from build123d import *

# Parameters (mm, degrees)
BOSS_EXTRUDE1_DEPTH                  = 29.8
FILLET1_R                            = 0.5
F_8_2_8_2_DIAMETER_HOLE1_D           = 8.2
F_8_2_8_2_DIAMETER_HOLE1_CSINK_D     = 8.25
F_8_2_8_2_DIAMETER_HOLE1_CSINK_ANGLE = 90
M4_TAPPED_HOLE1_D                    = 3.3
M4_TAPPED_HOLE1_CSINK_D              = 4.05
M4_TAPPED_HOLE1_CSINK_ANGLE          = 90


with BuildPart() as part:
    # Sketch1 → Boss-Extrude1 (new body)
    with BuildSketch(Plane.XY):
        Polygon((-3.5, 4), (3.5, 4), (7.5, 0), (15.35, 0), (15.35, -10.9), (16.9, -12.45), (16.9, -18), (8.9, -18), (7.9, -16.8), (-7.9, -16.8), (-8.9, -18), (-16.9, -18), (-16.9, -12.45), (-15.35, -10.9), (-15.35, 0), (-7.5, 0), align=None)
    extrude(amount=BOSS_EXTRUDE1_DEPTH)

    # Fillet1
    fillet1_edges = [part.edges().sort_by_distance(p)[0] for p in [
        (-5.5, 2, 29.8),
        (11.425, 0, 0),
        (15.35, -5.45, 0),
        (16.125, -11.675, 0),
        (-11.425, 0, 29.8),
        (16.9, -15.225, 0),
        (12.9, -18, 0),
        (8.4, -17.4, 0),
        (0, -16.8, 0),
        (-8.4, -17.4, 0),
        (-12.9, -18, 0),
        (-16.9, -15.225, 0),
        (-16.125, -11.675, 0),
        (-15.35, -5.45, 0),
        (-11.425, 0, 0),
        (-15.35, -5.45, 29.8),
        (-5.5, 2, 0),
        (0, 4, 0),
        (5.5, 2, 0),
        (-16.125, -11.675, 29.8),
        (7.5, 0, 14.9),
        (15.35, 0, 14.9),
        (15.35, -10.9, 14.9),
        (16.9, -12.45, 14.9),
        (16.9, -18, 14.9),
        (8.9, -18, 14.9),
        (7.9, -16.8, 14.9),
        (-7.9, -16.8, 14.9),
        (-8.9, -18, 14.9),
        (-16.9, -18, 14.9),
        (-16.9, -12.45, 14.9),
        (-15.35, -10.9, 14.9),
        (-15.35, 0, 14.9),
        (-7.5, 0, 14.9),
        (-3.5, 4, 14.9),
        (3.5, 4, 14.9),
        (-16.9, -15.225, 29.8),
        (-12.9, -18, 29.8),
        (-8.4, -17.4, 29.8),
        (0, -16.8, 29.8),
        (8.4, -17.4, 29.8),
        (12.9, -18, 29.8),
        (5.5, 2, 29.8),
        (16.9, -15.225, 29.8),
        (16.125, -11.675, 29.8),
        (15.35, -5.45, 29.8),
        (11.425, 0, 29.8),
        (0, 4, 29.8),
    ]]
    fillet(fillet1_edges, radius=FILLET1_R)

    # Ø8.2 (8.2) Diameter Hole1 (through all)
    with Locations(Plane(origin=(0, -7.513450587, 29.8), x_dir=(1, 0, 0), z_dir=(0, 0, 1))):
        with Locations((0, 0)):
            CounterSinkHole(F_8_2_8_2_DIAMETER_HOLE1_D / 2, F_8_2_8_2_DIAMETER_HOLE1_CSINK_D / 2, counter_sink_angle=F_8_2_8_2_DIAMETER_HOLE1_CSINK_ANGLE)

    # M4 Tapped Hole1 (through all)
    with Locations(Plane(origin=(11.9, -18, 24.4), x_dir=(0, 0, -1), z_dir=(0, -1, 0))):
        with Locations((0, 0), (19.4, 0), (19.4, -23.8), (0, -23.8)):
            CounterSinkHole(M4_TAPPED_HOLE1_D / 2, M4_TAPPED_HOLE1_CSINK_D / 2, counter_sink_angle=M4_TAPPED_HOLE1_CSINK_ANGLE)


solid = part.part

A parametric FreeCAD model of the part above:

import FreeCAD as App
import Part
import Sketcher
from FreeCAD import Vector
Q = App.Units.Quantity

doc = App.newDocument("Part")
body = doc.addObject("PartDesign::Body", "Body")

sketch1 = doc.addObject("Sketcher::SketchObject", "Sketch")
body.addObject(sketch1)
sketch1.AttachmentSupport = (doc.XY_Plane, [""])
sketch1.MapMode = "FlatFace"
sketch1.addGeometry([
    Part.LineSegment(Vector(3.5, 4, 0), Vector(-3.5, 4, 0)),
    Part.LineSegment(Vector(-3.5, 4, 0), Vector(-7.5, 0, 0)),
    Part.LineSegment(Vector(-7.5, 0, 0), Vector(-15.35, 0, 0)),
    Part.LineSegment(Vector(-15.35, 0, 0), Vector(-15.35, -10.9, 0)),
    Part.LineSegment(Vector(-15.35, -10.9, 0), Vector(-16.9, -12.45, 0)),
    Part.LineSegment(Vector(-16.9, -12.45, 0), Vector(-16.9, -18, 0)),
    Part.LineSegment(Vector(-16.9, -18, 0), Vector(-8.9, -18, 0)),
    Part.LineSegment(Vector(-8.9, -18, 0), Vector(-7.9, -16.8, 0)),
    Part.LineSegment(Vector(-7.9, -16.8, 0), Vector(7.9, -16.8, 0)),
    Part.LineSegment(Vector(7.9, -16.8, 0), Vector(8.9, -18, 0)),
    Part.LineSegment(Vector(8.9, -18, 0), Vector(16.9, -18, 0)),
    Part.LineSegment(Vector(16.9, -18, 0), Vector(16.9, -12.45, 0)),
    Part.LineSegment(Vector(16.9, -12.45, 0), Vector(15.35, -10.9, 0)),
    Part.LineSegment(Vector(15.35, -10.9, 0), Vector(15.35, 0, 0)),
    Part.LineSegment(Vector(15.35, 0, 0), Vector(7.5, 0, 0)),
    Part.LineSegment(Vector(7.5, 0, 0), Vector(3.5, 4, 0)),
], False)
sketch1.addConstraint([
    Sketcher.Constraint("Coincident", 0, 2, 1, 1),
    Sketcher.Constraint("Coincident", 1, 2, 2, 1),
    Sketcher.Constraint("Coincident", 2, 2, 3, 1),
    Sketcher.Constraint("Coincident", 3, 2, 4, 1),
    Sketcher.Constraint("Coincident", 4, 2, 5, 1),
    Sketcher.Constraint("Coincident", 5, 2, 6, 1),
    Sketcher.Constraint("Coincident", 6, 2, 7, 1),
    Sketcher.Constraint("Coincident", 7, 2, 8, 1),
    Sketcher.Constraint("Coincident", 8, 2, 9, 1),
    Sketcher.Constraint("Coincident", 9, 2, 10, 1),
    Sketcher.Constraint("Coincident", 10, 2, 11, 1),
    Sketcher.Constraint("Coincident", 11, 2, 12, 1),
    Sketcher.Constraint("Coincident", 12, 2, 13, 1),
    Sketcher.Constraint("Coincident", 13, 2, 14, 1),
    Sketcher.Constraint("Coincident", 14, 2, 15, 1),
    Sketcher.Constraint("Coincident", 15, 2, 0, 1),
    Sketcher.Constraint("Horizontal", 0),
    Sketcher.Constraint("Horizontal", 2),
    Sketcher.Constraint("Vertical", 3),
    Sketcher.Constraint("Vertical", 5),
    Sketcher.Constraint("Horizontal", 6),
    Sketcher.Constraint("Horizontal", 8),
    Sketcher.Constraint("Horizontal", 10),
    Sketcher.Constraint("Vertical", 11),
    Sketcher.Constraint("Vertical", 13),
    Sketcher.Constraint("Horizontal", 14),
    Sketcher.Constraint("Symmetric", 2, 2, 13, 2, -1, 1),
    Sketcher.Constraint("Symmetric", 6, 2, 9, 2, -2),
    Sketcher.Constraint("Symmetric", 4, 2, 11, 2, -2),
    Sketcher.Constraint("Symmetric", 1, 2, 14, 2, -2),
    Sketcher.Constraint("Parallel", 1, 4),
    Sketcher.Constraint("Perpendicular", 4, 12),
    Sketcher.Constraint("Parallel", 12, 15),
    Sketcher.Constraint("Horizontal", 3, 2, 12, 2),
    Sketcher.Constraint("Equal", 7, 9),
    Sketcher.Constraint("DistanceX", 0, 2, 0, 1, Q("7 mm")),
    Sketcher.Constraint("DistanceX", 6, 1, 6, 2, Q("8 mm")),
    Sketcher.Constraint("DistanceX", 8, 1, 8, 2, Q("15.8 mm")),
    Sketcher.Constraint("DistanceY", 3, 2, 3, 1, Q("10.9 mm")),
    Sketcher.Constraint("DistanceY", -1, 1, 0, 2, Q("4 mm")),
    Sketcher.Constraint("DistanceY", 5, 2, -1, 1, Q("18 mm")),
    Sketcher.Constraint("DistanceX", 6, 2, 7, 2, Q("1 mm")),
    Sketcher.Constraint("DistanceX", 2, 2, 2, 1, Q("7.85 mm")),
    Sketcher.Constraint("DistanceY", 7, 2, -1, 1, Q("16.8 mm")),
])
pad1 = doc.addObject("PartDesign::Pad", "Pad")
body.addObject(pad1)
pad1.Profile = sketch1
pad1.Length = 29.8
doc.recompute()

fillet = doc.addObject("PartDesign::Fillet", "Fillet")
body.addObject(fillet)
fillet.Base = (pad1, ["Edge1"])
fillet.UseAllEdges = True
fillet.Radius = 0.5

sketch2 = doc.addObject("Sketcher::SketchObject", "Sketch001")
body.addObject(sketch2)
sketch2.AttachmentSupport = (doc.XY_Plane, [""])
sketch2.MapMode = "FlatFace"
sketch2.AttachmentOffset = App.Placement(Vector(0, 0, 29.8), App.Rotation())
sketch2.addGeometry(Part.Circle(Vector(0, -7.513451, 0), Vector(0, 0, 1), 4.1), False)
sketch2.addConstraint([
    Sketcher.Constraint("PointOnObject", 0, 3, -2),
    Sketcher.Constraint("Diameter", 0, Q("8.2 mm")),
    Sketcher.Constraint("DistanceY", 0, 3, -1, 1, Q("7.513451 mm")),
])
doc.recompute()
hole = doc.addObject("PartDesign::Hole", "Hole")
body.addObject(hole)
hole.Profile = sketch2
hole.ThreadType = "None"
hole.Diameter = 8.2
hole.DepthType = "ThroughAll"
hole.HoleCutType = "Countersink"
hole.HoleCutDiameter = 8.25
hole.HoleCutCountersinkAngle = 90

sketch3 = doc.addObject("Sketcher::SketchObject", "Sketch002")
body.addObject(sketch3)
sketch3.AttachmentSupport = (doc.XZ_Plane, [""])
sketch3.MapMode = "FlatFace"
sketch3.AttachmentOffset = App.Placement(Vector(0, 0, 18), App.Rotation())
sketch3.addGeometry([
    Part.Circle(Vector(11.9, 24.4, 0), Vector(0, 0, 1), 1.65),
    Part.Circle(Vector(11.9, 5, 0), Vector(0, 0, 1), 1.65),
    Part.Circle(Vector(-11.9, 5, 0), Vector(0, 0, 1), 1.65),
    Part.Circle(Vector(-11.9, 24.4, 0), Vector(0, 0, 1), 1.65),
], False)
sketch3.addConstraint([
    Sketcher.Constraint("Equal", 0, 1),
    Sketcher.Constraint("Equal", 1, 2),
    Sketcher.Constraint("Equal", 2, 3),
    Sketcher.Constraint("Symmetric", 1, 3, 2, 3, -2),
    Sketcher.Constraint("Symmetric", 0, 3, 3, 3, -2),
    Sketcher.Constraint("Vertical", 0, 3, 1, 3),
    Sketcher.Constraint("Diameter", 0, Q("3.3 mm")),
    Sketcher.Constraint("DistanceY", -1, 1, 1, 3, Q("5 mm")),
    Sketcher.Constraint("DistanceX", -1, 1, 0, 3, Q("11.9 mm")),
    Sketcher.Constraint("DistanceY", -1, 1, 0, 3, Q("24.4 mm")),
])
doc.recompute()
hole2 = doc.addObject("PartDesign::Hole", "Hole001")
body.addObject(hole2)
hole2.Profile = sketch3
hole2.ThreadType = "None"
hole2.Diameter = 3.3
hole2.DepthType = "ThroughAll"
hole2.HoleCutType = "Countersink"
hole2.HoleCutDiameter = 4.05
hole2.HoleCutCountersinkAngle = 90

doc.recompute()
